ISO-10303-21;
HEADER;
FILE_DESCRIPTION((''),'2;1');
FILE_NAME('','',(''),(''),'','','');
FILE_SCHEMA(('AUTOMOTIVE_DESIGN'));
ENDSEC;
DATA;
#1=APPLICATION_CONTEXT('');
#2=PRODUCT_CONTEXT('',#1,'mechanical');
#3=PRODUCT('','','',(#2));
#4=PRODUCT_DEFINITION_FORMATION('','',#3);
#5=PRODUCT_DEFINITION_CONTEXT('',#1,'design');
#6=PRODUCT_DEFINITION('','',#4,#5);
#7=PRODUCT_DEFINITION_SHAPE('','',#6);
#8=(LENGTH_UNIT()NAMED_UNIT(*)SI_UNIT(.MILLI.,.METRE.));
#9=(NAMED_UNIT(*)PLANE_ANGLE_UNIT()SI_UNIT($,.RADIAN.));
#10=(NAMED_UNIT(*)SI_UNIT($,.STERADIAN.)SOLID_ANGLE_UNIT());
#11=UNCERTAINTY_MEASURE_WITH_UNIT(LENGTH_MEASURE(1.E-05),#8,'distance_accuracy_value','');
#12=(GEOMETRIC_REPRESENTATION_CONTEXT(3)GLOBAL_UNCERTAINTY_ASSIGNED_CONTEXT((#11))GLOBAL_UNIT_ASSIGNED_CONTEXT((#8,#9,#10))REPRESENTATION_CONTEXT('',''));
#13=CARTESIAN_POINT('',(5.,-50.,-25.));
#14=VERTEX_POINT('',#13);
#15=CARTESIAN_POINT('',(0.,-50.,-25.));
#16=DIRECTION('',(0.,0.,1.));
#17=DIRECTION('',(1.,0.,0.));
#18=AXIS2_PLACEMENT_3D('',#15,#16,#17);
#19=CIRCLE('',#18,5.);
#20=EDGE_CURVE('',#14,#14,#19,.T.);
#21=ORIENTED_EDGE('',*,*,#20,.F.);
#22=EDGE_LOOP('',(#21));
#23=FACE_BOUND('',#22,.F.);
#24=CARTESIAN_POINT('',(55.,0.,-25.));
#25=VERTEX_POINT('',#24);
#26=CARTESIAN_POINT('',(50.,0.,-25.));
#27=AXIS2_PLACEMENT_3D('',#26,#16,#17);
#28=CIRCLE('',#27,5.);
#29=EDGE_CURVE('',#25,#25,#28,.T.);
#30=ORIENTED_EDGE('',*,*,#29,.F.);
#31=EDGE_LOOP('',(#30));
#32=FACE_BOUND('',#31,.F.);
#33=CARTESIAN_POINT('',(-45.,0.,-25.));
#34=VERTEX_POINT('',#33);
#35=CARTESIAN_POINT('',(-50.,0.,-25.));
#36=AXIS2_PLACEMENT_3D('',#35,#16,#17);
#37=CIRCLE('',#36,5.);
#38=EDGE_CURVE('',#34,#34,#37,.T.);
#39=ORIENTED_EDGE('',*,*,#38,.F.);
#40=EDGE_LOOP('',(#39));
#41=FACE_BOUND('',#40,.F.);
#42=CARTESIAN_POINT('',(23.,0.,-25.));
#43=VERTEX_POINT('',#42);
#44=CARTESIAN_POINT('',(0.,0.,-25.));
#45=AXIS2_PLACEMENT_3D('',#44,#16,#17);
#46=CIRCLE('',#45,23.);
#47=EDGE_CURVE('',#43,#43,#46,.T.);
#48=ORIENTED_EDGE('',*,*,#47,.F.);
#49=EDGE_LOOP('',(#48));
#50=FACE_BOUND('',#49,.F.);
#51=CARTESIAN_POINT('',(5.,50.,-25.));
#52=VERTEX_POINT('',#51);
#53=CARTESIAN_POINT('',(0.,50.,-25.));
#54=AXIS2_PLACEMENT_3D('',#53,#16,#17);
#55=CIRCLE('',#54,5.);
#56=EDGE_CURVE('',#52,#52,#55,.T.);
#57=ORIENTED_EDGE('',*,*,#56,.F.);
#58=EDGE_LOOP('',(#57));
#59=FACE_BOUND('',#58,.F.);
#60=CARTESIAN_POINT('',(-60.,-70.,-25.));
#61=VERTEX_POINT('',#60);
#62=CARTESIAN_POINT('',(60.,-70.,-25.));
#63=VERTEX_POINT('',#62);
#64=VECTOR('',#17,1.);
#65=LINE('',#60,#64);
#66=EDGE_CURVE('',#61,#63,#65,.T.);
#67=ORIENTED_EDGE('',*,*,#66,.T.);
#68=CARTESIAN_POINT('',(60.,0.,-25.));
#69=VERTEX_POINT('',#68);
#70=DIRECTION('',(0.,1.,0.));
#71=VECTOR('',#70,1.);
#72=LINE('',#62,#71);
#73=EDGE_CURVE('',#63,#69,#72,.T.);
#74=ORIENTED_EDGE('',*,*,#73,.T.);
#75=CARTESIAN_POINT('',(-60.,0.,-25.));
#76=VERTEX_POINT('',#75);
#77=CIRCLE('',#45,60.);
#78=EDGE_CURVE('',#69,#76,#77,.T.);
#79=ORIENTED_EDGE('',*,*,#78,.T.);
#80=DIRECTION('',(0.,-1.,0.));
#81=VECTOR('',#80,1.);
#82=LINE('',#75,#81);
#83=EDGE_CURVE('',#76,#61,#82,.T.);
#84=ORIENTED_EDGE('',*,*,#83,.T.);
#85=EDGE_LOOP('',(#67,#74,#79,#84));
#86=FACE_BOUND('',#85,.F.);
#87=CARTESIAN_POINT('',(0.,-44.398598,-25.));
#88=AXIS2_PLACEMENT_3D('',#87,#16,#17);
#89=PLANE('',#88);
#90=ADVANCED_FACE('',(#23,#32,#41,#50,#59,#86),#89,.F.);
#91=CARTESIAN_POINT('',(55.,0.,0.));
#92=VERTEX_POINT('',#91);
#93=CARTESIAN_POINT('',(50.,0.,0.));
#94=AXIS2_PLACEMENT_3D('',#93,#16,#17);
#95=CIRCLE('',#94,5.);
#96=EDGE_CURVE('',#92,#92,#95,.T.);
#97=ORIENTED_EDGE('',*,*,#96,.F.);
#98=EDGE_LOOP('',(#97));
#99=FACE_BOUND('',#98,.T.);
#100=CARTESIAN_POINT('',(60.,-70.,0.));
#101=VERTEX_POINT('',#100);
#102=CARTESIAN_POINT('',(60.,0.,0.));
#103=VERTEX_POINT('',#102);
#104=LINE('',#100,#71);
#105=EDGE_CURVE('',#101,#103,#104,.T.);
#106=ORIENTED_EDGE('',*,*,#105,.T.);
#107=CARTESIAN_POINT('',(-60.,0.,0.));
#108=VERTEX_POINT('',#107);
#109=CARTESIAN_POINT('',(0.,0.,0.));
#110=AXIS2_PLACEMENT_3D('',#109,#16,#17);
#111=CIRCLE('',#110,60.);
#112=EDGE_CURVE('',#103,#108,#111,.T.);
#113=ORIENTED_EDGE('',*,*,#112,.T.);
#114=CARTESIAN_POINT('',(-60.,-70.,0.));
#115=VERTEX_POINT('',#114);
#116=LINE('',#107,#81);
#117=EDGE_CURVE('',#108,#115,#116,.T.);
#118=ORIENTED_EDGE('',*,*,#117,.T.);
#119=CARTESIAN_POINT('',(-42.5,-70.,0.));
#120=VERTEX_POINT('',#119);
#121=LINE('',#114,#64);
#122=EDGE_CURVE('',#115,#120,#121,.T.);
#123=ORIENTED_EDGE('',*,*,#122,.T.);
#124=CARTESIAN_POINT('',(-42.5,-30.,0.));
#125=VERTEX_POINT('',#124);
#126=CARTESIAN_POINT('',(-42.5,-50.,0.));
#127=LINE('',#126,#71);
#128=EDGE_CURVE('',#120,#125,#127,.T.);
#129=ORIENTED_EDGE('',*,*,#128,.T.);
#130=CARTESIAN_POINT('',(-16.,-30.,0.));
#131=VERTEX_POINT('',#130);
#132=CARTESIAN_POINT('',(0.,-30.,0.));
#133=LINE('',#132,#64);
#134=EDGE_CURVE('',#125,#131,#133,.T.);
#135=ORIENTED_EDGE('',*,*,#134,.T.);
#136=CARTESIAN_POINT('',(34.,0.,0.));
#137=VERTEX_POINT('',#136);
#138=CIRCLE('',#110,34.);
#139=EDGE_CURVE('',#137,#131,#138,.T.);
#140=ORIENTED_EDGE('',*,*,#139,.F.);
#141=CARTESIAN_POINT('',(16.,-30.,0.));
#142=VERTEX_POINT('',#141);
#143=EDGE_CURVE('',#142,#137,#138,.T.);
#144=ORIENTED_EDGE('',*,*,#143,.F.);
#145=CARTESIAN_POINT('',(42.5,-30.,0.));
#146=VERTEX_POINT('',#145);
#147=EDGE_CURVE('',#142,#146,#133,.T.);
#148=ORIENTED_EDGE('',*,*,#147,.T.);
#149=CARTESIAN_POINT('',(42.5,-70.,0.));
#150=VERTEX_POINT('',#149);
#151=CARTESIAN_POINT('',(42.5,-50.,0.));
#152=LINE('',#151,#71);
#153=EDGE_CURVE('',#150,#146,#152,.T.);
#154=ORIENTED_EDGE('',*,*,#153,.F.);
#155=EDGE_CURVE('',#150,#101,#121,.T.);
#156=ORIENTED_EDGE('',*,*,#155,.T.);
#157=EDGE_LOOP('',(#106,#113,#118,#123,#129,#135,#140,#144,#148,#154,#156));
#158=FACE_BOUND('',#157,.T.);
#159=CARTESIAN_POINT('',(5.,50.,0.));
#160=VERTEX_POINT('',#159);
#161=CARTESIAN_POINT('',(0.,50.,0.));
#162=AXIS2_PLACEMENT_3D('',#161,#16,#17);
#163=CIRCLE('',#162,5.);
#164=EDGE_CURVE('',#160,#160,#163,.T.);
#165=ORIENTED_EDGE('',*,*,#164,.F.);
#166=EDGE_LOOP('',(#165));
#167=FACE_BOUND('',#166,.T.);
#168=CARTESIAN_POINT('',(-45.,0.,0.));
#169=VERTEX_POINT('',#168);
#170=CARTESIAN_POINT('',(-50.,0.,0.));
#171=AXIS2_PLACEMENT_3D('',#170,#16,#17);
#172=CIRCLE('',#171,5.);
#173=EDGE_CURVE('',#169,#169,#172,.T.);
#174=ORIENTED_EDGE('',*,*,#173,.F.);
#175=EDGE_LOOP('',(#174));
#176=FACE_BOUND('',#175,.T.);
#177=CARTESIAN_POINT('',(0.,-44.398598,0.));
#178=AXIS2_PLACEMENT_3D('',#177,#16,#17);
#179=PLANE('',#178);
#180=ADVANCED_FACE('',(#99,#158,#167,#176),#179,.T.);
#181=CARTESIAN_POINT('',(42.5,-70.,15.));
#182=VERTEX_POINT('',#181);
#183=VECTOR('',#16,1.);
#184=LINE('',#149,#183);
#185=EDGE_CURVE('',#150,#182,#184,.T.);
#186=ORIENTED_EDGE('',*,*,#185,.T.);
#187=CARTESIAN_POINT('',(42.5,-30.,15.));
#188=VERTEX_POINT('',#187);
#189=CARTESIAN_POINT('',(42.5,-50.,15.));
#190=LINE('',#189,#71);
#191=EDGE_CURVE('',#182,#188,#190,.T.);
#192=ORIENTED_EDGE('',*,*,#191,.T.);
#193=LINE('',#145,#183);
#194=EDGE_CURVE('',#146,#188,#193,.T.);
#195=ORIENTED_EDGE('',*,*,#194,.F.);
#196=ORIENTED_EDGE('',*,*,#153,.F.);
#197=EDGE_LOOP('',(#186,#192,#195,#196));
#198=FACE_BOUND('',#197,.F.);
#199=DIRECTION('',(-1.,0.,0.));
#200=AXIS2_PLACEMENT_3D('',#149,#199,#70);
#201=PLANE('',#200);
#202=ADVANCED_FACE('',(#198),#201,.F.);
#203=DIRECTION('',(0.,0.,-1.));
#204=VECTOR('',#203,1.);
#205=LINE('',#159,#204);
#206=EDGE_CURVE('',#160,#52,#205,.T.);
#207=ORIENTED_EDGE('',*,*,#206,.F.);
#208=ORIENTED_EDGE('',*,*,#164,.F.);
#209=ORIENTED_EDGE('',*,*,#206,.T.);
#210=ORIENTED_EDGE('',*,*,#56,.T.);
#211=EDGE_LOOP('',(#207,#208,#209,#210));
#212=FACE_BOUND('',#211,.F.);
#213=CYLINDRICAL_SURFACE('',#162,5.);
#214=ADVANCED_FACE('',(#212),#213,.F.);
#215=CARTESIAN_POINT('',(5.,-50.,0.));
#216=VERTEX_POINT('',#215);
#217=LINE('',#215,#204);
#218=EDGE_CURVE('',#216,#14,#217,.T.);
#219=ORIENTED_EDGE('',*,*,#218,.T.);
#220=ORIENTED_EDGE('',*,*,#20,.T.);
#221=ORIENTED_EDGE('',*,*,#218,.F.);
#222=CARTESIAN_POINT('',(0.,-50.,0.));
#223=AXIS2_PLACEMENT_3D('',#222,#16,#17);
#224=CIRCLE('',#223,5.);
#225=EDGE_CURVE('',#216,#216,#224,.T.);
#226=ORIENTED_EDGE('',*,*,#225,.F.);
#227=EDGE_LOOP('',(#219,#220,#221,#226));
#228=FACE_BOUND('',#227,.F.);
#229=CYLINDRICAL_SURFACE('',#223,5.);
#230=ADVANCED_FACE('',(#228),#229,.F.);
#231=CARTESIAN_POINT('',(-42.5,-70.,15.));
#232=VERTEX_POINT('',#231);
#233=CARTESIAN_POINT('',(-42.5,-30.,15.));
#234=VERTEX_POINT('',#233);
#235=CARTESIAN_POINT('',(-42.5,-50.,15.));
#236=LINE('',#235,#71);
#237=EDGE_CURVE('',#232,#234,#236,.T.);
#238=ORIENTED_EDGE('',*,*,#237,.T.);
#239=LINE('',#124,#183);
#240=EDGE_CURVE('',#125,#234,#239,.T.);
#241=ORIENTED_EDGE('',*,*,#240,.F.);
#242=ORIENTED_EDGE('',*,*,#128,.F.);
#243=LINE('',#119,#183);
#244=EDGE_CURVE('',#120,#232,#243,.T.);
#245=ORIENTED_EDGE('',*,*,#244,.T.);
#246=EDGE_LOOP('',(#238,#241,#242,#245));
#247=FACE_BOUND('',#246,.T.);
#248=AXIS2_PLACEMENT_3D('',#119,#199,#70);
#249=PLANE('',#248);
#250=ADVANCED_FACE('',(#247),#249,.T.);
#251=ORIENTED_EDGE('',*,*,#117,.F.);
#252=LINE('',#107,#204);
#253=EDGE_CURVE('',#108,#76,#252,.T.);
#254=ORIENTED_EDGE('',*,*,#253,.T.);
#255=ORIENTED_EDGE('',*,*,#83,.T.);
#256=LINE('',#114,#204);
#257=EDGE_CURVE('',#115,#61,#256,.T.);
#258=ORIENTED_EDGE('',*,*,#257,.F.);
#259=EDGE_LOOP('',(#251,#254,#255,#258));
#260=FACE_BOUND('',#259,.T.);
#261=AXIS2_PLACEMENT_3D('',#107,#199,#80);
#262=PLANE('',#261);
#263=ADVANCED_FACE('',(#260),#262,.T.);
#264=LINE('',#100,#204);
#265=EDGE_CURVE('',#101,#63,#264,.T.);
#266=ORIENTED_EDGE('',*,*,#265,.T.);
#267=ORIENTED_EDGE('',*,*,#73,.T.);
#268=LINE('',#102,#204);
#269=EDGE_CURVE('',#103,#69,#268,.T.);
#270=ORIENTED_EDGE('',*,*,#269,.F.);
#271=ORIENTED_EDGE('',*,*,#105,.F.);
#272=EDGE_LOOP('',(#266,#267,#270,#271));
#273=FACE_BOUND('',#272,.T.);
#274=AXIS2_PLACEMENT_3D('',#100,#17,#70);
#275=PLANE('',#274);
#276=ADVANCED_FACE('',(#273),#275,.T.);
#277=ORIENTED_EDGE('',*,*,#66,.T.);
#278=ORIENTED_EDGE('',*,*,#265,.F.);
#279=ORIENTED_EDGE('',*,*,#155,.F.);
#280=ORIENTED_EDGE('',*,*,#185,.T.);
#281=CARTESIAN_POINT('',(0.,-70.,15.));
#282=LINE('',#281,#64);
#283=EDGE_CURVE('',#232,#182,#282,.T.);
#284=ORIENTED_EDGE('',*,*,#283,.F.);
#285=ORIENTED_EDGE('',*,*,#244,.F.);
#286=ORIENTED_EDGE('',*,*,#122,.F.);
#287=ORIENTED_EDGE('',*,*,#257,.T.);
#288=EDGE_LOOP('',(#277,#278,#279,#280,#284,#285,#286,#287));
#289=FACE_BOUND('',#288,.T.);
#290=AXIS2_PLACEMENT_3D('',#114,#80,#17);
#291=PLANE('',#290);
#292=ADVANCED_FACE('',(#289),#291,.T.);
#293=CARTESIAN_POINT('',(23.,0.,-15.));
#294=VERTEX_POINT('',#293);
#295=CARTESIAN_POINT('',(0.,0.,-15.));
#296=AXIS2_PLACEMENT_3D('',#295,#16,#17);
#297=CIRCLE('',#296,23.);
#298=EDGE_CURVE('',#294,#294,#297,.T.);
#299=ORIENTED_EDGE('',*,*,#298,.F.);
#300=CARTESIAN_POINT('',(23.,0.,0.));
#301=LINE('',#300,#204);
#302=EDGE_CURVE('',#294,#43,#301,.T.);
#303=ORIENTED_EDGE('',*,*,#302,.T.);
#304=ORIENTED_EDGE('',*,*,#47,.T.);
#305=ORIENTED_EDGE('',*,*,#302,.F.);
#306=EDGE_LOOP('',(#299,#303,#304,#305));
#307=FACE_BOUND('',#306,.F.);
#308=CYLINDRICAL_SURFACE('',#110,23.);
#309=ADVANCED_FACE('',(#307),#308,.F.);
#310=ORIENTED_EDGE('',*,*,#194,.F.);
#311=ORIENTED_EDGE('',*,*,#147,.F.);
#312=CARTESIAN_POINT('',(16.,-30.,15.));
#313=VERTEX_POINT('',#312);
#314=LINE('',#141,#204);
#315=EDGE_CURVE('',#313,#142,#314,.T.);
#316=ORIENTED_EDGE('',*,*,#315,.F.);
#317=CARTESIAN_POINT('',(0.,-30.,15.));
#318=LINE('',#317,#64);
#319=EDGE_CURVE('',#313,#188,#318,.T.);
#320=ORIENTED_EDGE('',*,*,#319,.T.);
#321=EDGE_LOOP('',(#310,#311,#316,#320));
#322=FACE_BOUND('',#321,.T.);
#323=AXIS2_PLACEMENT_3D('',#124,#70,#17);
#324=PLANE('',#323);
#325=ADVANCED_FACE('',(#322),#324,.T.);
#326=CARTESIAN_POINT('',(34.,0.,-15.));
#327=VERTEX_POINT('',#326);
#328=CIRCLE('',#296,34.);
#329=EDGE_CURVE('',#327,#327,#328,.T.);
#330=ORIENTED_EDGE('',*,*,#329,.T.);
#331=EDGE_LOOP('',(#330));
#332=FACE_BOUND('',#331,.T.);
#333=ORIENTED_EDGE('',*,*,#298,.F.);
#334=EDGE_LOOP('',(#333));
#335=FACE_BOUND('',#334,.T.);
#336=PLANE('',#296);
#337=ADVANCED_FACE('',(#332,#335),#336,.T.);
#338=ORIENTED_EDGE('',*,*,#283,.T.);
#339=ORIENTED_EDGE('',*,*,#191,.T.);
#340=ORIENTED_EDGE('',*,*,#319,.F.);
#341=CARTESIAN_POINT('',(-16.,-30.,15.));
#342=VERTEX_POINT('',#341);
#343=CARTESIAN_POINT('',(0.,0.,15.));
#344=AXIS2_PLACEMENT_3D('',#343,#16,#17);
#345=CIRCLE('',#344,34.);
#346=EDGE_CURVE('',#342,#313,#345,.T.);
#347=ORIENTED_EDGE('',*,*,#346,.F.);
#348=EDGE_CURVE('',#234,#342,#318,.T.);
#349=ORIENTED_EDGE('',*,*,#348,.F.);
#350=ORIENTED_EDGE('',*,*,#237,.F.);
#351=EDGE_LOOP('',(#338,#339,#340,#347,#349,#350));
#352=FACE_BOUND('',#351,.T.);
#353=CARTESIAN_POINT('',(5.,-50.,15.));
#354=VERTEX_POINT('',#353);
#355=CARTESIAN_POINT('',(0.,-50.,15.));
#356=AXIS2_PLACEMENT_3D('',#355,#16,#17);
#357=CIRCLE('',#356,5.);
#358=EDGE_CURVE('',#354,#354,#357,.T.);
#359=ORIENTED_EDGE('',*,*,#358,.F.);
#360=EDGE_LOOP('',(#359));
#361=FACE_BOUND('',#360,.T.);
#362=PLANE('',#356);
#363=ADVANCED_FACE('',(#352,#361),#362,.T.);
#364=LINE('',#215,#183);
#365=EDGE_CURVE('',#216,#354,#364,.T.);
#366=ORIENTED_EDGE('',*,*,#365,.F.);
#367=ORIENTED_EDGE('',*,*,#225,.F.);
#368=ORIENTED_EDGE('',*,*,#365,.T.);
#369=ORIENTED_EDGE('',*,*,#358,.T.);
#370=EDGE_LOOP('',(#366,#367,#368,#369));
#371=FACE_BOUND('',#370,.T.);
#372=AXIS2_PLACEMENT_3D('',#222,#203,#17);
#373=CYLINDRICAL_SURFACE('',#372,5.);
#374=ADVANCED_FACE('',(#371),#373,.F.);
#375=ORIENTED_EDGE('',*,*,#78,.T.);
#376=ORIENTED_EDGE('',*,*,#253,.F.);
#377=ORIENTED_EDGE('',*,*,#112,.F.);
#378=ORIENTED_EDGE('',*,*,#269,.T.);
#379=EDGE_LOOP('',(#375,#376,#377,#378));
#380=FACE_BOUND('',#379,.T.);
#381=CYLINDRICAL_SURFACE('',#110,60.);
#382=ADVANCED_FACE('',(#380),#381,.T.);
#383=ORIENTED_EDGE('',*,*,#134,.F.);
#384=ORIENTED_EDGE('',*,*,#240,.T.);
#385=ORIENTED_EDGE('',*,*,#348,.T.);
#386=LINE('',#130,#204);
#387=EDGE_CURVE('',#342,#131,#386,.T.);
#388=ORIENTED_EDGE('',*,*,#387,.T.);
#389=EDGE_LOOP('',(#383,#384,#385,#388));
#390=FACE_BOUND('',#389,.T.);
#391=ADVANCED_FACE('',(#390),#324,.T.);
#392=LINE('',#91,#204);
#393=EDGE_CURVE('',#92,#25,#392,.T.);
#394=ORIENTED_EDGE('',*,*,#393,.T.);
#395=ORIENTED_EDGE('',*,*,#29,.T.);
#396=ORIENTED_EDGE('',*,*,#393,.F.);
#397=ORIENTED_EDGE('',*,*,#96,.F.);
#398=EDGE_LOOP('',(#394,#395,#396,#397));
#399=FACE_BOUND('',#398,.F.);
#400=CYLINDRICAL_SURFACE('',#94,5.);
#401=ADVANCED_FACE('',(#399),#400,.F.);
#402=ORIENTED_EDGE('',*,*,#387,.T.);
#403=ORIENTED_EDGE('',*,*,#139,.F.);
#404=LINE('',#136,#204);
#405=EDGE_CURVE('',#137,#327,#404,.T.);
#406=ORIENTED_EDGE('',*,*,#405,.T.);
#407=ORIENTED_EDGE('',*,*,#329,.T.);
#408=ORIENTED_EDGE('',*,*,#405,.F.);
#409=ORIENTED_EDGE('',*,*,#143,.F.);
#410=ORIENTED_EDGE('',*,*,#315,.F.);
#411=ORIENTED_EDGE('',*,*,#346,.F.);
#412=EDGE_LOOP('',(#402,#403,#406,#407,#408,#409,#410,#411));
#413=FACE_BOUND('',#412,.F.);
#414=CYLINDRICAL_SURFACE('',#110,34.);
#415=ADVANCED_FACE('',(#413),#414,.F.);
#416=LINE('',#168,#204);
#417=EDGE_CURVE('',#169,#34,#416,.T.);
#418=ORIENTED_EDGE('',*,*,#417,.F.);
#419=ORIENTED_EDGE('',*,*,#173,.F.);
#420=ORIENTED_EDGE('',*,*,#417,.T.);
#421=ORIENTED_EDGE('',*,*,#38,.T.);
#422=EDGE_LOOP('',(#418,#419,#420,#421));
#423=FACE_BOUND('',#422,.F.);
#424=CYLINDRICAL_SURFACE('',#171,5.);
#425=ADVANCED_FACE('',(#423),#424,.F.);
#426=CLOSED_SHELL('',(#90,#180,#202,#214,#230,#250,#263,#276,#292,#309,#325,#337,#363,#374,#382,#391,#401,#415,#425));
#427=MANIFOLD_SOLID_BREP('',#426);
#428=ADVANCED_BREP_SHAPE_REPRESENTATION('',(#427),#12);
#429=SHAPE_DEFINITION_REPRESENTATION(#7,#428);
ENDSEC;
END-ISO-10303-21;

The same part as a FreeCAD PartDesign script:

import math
import FreeCAD as App
import Part
import Sketcher


def add_polygon(sketch, points):
    """Adds a closed chain of lines whose ends are joined by coincident constraints."""
    first, n = sketch.GeometryCount, len(points)
    for a, b in zip(points, points[1:] + points[:1]):
        sketch.addGeometry(Part.LineSegment(App.Vector(*a, 0), App.Vector(*b, 0)), False)
    for i in range(n):
        sketch.addConstraint(Sketcher.Constraint("Coincident", first + i, 2, first + (i + 1) % n, 1))

doc = App.newDocument("Part")
params = doc.addObject("Spreadsheet::Sheet", "Params")
for row, (alias, value) in enumerate([
    ("sketch1_radius", "60 mm"),
    ("sketch1_height", "70 mm"),
    ("pad1_length", "25 mm"),
    ("sketch2_width", "85 mm"),
    ("sketch2_height", "40 mm"),
    ("pad2_length", "15 mm"),
    ("sketch3_diameter", "10 mm"),
    ("sketch4_diameter", "68 mm"),
    ("pocket2_length", "15 mm"),
    ("pocket2_length2", "15 mm"),
    ("sketch5_diameter", "46 mm"),
    ("pocket3_length", "25 mm"),
    ("sketch6_diameter", "10 mm"),
    ("pocket4_length", "25 mm"),
], start=1):
    params.set(f"A{row}", alias)
    params.set(f"B{row}", "=" + value)
    params.setAlias(f"B{row}", alias)

body = doc.addObject("PartDesign::Body", "Body")

# Sketch on XY plane
sketch1 = body.newObject("Sketcher::SketchObject", "Sketch")
sketch1.AttachmentSupport = (doc.getObject("XY_Plane"), [""])
sketch1.MapMode = "FlatFace"
sketch1.addGeometry([
    Part.LineSegment(App.Vector(60, -70, 0), App.Vector(60, 0, 0)),
    Part.ArcOfCircle(Part.Circle(App.Vector(0, 0, 0), App.Vector(0, 0, 1), 60), math.radians(0), math.radians(180)),
    Part.LineSegment(App.Vector(-60, 0, 0), App.Vector(-60, -70, 0)),
    Part.LineSegment(App.Vector(-60, -70, 0), App.Vector(60, -70, 0)),
], False)
sketch1.addConstraint([
    Sketcher.Constraint("Tangent", 0, 2, 1, 1),
    Sketcher.Constraint("Tangent", 1, 2, 2, 1),
    Sketcher.Constraint("Coincident", 2, 2, 3, 1),
    Sketcher.Constraint("Coincident", 3, 2, 0, 1),
    Sketcher.Constraint("Vertical", 0),
    Sketcher.Constraint("Vertical", 2),
    Sketcher.Constraint("Horizontal", 3),
    Sketcher.Constraint("Coincident", 1, 3, -1, 1),
    Sketcher.Constraint("Radius", 1, 60.0),
    Sketcher.Constraint("DistanceY", 0, 1, 0, 2, 70.0),
])
sketch1.setExpression("Constraints[8]", "Params.sketch1_radius")
sketch1.setExpression("Constraints[9]", "Params.sketch1_height")
pad1 = body.newObject("PartDesign::Pad", "Pad")
pad1.Profile = sketch1
pad1.setExpression("Length", "Params.pad1_length")
pad1.Reversed = True

# Sketch on XY plane
sketch2 = body.newObject("Sketcher::SketchObject", "Sketch001")
sketch2.AttachmentSupport = (doc.getObject("XY_Plane"), [""])
sketch2.MapMode = "FlatFace"
add_polygon(sketch2, [(-42, -30), (-42, -70), (42, -70), (42, -30)])  # lines 0-3
sketch2.addConstraint([
    Sketcher.Constraint("Vertical", 0),
    Sketcher.Constraint("Horizontal", 1),
    Sketcher.Constraint("Vertical", 2),
    Sketcher.Constraint("Horizontal", 3),
    Sketcher.Constraint("DistanceX", 1, 1, 1, 2, 85.0),
    Sketcher.Constraint("DistanceY", 0, 2, 0, 1, 40.0),
    Sketcher.Constraint("DistanceY", 0, 2, -1, 1, 70.0),
    Sketcher.Constraint("DistanceX", 0, 2, -1, 1, 42.5),
])
sketch2.setExpression("Constraints[8]", "Params.sketch2_width")
sketch2.setExpression("Constraints[9]", "Params.sketch2_height")
pad2 = body.newObject("PartDesign::Pad", "Pad001")
pad2.Profile = sketch2
pad2.setExpression("Length", "Params.pad2_length")

# Sketch on XY plane
sketch3 = body.newObject("Sketcher::SketchObject", "Sketch002")
sketch3.AttachmentSupport = (doc.getObject("XY_Plane"), [""])
sketch3.MapMode = "FlatFace"
sketch3.addGeometry(Part.Circle(App.Vector(0, -50, 0), App.Vector(0, 0, 1), 5), False)
sketch3.addConstraint([
    Sketcher.Constraint("PointOnObject", 0, 3, -2),
    Sketcher.Constraint("Diameter", 0, 10.0),
    Sketcher.Constraint("DistanceY", 0, 3, -1, 1, 50.0),
])
sketch3.setExpression("Constraints[1]", "Params.sketch3_diameter")
pocket1 = body.newObject("PartDesign::Pocket", "Pocket")
pocket1.Profile = sketch3
pocket1.Type = "ThroughAll"
pocket1.Midplane = True

# Sketch on XY plane
sketch4 = body.newObject("Sketcher::SketchObject", "Sketch003")
sketch4.AttachmentSupport = (doc.getObject("XY_Plane"), [""])
sketch4.MapMode = "FlatFace"
sketch4.addGeometry(Part.Circle(App.Vector(0, 0, 0), App.Vector(0, 0, 1), 34), False)
sketch4.addConstraint([
    Sketcher.Constraint("Coincident", 0, 3, -1, 1),
    Sketcher.Constraint("Diameter", 0, 68.0),
])
sketch4.setExpression("Constraints[1]", "Params.sketch4_diameter")
pocket2 = body.newObject("PartDesign::Pocket", "Pocket001")
pocket2.Profile = sketch4
pocket2.Type = "TwoLengths"
pocket2.setExpression("Length", "Params.pocket2_length")
pocket2.setExpression("Length2", "Params.pocket2_length2")

# Sketch on XY plane
sketch5 = body.newObject("Sketcher::SketchObject", "Sketch004")
sketch5.AttachmentSupport = (doc.getObject("XY_Plane"), [""])
sketch5.MapMode = "FlatFace"
sketch5.addGeometry(Part.Circle(App.Vector(0, 0, 0), App.Vector(0, 0, 1), 23), False)
sketch5.addConstraint([
    Sketcher.Constraint("Coincident", 0, 3, -1, 1),
    Sketcher.Constraint("Diameter", 0, 46.0),
])
sketch5.setExpression("Constraints[1]", "Params.sketch5_diameter")
pocket3 = body.newObject("PartDesign::Pocket", "Pocket002")
pocket3.Profile = sketch5
pocket3.setExpression("Length", "Params.pocket3_length")

# Sketch on XY plane
sketch6 = body.newObject("Sketcher::SketchObject", "Sketch005")
sketch6.AttachmentSupport = (doc.getObject("XY_Plane"), [""])
sketch6.MapMode = "FlatFace"
sketch6.addGeometry([
    Part.Circle(App.Vector(-50, 0, 0), App.Vector(0, 0, 1), 5),
    Part.Circle(App.Vector(0, 50, 0), App.Vector(0, 0, 1), 5),
    Part.Circle(App.Vector(50, 0, 0), App.Vector(0, 0, 1), 5),
], False)
sketch6.addConstraint([
    Sketcher.Constraint("Equal", 0, 1),
    Sketcher.Constraint("Equal", 1, 2),
    Sketcher.Constraint("Symmetric", 0, 3, 2, 3, -1, 1),
    Sketcher.Constraint("PointOnObject", 0, 3, -1),
    Sketcher.Constraint("PointOnObject", 1, 3, -2),
    Sketcher.Constraint("Diameter", 0, 10.0),
    Sketcher.Constraint("DistanceX", 0, 3, -1, 1, 50.0),
    Sketcher.Constraint("DistanceY", -1, 1, 1, 3, 50.0),
])
sketch6.setExpression("Constraints[5]", "Params.sketch6_diameter")
pocket4 = body.newObject("PartDesign::Pocket", "Pocket003")
pocket4.Profile = sketch6
pocket4.setExpression("Length", "Params.pocket4_length")

doc.recompute()
